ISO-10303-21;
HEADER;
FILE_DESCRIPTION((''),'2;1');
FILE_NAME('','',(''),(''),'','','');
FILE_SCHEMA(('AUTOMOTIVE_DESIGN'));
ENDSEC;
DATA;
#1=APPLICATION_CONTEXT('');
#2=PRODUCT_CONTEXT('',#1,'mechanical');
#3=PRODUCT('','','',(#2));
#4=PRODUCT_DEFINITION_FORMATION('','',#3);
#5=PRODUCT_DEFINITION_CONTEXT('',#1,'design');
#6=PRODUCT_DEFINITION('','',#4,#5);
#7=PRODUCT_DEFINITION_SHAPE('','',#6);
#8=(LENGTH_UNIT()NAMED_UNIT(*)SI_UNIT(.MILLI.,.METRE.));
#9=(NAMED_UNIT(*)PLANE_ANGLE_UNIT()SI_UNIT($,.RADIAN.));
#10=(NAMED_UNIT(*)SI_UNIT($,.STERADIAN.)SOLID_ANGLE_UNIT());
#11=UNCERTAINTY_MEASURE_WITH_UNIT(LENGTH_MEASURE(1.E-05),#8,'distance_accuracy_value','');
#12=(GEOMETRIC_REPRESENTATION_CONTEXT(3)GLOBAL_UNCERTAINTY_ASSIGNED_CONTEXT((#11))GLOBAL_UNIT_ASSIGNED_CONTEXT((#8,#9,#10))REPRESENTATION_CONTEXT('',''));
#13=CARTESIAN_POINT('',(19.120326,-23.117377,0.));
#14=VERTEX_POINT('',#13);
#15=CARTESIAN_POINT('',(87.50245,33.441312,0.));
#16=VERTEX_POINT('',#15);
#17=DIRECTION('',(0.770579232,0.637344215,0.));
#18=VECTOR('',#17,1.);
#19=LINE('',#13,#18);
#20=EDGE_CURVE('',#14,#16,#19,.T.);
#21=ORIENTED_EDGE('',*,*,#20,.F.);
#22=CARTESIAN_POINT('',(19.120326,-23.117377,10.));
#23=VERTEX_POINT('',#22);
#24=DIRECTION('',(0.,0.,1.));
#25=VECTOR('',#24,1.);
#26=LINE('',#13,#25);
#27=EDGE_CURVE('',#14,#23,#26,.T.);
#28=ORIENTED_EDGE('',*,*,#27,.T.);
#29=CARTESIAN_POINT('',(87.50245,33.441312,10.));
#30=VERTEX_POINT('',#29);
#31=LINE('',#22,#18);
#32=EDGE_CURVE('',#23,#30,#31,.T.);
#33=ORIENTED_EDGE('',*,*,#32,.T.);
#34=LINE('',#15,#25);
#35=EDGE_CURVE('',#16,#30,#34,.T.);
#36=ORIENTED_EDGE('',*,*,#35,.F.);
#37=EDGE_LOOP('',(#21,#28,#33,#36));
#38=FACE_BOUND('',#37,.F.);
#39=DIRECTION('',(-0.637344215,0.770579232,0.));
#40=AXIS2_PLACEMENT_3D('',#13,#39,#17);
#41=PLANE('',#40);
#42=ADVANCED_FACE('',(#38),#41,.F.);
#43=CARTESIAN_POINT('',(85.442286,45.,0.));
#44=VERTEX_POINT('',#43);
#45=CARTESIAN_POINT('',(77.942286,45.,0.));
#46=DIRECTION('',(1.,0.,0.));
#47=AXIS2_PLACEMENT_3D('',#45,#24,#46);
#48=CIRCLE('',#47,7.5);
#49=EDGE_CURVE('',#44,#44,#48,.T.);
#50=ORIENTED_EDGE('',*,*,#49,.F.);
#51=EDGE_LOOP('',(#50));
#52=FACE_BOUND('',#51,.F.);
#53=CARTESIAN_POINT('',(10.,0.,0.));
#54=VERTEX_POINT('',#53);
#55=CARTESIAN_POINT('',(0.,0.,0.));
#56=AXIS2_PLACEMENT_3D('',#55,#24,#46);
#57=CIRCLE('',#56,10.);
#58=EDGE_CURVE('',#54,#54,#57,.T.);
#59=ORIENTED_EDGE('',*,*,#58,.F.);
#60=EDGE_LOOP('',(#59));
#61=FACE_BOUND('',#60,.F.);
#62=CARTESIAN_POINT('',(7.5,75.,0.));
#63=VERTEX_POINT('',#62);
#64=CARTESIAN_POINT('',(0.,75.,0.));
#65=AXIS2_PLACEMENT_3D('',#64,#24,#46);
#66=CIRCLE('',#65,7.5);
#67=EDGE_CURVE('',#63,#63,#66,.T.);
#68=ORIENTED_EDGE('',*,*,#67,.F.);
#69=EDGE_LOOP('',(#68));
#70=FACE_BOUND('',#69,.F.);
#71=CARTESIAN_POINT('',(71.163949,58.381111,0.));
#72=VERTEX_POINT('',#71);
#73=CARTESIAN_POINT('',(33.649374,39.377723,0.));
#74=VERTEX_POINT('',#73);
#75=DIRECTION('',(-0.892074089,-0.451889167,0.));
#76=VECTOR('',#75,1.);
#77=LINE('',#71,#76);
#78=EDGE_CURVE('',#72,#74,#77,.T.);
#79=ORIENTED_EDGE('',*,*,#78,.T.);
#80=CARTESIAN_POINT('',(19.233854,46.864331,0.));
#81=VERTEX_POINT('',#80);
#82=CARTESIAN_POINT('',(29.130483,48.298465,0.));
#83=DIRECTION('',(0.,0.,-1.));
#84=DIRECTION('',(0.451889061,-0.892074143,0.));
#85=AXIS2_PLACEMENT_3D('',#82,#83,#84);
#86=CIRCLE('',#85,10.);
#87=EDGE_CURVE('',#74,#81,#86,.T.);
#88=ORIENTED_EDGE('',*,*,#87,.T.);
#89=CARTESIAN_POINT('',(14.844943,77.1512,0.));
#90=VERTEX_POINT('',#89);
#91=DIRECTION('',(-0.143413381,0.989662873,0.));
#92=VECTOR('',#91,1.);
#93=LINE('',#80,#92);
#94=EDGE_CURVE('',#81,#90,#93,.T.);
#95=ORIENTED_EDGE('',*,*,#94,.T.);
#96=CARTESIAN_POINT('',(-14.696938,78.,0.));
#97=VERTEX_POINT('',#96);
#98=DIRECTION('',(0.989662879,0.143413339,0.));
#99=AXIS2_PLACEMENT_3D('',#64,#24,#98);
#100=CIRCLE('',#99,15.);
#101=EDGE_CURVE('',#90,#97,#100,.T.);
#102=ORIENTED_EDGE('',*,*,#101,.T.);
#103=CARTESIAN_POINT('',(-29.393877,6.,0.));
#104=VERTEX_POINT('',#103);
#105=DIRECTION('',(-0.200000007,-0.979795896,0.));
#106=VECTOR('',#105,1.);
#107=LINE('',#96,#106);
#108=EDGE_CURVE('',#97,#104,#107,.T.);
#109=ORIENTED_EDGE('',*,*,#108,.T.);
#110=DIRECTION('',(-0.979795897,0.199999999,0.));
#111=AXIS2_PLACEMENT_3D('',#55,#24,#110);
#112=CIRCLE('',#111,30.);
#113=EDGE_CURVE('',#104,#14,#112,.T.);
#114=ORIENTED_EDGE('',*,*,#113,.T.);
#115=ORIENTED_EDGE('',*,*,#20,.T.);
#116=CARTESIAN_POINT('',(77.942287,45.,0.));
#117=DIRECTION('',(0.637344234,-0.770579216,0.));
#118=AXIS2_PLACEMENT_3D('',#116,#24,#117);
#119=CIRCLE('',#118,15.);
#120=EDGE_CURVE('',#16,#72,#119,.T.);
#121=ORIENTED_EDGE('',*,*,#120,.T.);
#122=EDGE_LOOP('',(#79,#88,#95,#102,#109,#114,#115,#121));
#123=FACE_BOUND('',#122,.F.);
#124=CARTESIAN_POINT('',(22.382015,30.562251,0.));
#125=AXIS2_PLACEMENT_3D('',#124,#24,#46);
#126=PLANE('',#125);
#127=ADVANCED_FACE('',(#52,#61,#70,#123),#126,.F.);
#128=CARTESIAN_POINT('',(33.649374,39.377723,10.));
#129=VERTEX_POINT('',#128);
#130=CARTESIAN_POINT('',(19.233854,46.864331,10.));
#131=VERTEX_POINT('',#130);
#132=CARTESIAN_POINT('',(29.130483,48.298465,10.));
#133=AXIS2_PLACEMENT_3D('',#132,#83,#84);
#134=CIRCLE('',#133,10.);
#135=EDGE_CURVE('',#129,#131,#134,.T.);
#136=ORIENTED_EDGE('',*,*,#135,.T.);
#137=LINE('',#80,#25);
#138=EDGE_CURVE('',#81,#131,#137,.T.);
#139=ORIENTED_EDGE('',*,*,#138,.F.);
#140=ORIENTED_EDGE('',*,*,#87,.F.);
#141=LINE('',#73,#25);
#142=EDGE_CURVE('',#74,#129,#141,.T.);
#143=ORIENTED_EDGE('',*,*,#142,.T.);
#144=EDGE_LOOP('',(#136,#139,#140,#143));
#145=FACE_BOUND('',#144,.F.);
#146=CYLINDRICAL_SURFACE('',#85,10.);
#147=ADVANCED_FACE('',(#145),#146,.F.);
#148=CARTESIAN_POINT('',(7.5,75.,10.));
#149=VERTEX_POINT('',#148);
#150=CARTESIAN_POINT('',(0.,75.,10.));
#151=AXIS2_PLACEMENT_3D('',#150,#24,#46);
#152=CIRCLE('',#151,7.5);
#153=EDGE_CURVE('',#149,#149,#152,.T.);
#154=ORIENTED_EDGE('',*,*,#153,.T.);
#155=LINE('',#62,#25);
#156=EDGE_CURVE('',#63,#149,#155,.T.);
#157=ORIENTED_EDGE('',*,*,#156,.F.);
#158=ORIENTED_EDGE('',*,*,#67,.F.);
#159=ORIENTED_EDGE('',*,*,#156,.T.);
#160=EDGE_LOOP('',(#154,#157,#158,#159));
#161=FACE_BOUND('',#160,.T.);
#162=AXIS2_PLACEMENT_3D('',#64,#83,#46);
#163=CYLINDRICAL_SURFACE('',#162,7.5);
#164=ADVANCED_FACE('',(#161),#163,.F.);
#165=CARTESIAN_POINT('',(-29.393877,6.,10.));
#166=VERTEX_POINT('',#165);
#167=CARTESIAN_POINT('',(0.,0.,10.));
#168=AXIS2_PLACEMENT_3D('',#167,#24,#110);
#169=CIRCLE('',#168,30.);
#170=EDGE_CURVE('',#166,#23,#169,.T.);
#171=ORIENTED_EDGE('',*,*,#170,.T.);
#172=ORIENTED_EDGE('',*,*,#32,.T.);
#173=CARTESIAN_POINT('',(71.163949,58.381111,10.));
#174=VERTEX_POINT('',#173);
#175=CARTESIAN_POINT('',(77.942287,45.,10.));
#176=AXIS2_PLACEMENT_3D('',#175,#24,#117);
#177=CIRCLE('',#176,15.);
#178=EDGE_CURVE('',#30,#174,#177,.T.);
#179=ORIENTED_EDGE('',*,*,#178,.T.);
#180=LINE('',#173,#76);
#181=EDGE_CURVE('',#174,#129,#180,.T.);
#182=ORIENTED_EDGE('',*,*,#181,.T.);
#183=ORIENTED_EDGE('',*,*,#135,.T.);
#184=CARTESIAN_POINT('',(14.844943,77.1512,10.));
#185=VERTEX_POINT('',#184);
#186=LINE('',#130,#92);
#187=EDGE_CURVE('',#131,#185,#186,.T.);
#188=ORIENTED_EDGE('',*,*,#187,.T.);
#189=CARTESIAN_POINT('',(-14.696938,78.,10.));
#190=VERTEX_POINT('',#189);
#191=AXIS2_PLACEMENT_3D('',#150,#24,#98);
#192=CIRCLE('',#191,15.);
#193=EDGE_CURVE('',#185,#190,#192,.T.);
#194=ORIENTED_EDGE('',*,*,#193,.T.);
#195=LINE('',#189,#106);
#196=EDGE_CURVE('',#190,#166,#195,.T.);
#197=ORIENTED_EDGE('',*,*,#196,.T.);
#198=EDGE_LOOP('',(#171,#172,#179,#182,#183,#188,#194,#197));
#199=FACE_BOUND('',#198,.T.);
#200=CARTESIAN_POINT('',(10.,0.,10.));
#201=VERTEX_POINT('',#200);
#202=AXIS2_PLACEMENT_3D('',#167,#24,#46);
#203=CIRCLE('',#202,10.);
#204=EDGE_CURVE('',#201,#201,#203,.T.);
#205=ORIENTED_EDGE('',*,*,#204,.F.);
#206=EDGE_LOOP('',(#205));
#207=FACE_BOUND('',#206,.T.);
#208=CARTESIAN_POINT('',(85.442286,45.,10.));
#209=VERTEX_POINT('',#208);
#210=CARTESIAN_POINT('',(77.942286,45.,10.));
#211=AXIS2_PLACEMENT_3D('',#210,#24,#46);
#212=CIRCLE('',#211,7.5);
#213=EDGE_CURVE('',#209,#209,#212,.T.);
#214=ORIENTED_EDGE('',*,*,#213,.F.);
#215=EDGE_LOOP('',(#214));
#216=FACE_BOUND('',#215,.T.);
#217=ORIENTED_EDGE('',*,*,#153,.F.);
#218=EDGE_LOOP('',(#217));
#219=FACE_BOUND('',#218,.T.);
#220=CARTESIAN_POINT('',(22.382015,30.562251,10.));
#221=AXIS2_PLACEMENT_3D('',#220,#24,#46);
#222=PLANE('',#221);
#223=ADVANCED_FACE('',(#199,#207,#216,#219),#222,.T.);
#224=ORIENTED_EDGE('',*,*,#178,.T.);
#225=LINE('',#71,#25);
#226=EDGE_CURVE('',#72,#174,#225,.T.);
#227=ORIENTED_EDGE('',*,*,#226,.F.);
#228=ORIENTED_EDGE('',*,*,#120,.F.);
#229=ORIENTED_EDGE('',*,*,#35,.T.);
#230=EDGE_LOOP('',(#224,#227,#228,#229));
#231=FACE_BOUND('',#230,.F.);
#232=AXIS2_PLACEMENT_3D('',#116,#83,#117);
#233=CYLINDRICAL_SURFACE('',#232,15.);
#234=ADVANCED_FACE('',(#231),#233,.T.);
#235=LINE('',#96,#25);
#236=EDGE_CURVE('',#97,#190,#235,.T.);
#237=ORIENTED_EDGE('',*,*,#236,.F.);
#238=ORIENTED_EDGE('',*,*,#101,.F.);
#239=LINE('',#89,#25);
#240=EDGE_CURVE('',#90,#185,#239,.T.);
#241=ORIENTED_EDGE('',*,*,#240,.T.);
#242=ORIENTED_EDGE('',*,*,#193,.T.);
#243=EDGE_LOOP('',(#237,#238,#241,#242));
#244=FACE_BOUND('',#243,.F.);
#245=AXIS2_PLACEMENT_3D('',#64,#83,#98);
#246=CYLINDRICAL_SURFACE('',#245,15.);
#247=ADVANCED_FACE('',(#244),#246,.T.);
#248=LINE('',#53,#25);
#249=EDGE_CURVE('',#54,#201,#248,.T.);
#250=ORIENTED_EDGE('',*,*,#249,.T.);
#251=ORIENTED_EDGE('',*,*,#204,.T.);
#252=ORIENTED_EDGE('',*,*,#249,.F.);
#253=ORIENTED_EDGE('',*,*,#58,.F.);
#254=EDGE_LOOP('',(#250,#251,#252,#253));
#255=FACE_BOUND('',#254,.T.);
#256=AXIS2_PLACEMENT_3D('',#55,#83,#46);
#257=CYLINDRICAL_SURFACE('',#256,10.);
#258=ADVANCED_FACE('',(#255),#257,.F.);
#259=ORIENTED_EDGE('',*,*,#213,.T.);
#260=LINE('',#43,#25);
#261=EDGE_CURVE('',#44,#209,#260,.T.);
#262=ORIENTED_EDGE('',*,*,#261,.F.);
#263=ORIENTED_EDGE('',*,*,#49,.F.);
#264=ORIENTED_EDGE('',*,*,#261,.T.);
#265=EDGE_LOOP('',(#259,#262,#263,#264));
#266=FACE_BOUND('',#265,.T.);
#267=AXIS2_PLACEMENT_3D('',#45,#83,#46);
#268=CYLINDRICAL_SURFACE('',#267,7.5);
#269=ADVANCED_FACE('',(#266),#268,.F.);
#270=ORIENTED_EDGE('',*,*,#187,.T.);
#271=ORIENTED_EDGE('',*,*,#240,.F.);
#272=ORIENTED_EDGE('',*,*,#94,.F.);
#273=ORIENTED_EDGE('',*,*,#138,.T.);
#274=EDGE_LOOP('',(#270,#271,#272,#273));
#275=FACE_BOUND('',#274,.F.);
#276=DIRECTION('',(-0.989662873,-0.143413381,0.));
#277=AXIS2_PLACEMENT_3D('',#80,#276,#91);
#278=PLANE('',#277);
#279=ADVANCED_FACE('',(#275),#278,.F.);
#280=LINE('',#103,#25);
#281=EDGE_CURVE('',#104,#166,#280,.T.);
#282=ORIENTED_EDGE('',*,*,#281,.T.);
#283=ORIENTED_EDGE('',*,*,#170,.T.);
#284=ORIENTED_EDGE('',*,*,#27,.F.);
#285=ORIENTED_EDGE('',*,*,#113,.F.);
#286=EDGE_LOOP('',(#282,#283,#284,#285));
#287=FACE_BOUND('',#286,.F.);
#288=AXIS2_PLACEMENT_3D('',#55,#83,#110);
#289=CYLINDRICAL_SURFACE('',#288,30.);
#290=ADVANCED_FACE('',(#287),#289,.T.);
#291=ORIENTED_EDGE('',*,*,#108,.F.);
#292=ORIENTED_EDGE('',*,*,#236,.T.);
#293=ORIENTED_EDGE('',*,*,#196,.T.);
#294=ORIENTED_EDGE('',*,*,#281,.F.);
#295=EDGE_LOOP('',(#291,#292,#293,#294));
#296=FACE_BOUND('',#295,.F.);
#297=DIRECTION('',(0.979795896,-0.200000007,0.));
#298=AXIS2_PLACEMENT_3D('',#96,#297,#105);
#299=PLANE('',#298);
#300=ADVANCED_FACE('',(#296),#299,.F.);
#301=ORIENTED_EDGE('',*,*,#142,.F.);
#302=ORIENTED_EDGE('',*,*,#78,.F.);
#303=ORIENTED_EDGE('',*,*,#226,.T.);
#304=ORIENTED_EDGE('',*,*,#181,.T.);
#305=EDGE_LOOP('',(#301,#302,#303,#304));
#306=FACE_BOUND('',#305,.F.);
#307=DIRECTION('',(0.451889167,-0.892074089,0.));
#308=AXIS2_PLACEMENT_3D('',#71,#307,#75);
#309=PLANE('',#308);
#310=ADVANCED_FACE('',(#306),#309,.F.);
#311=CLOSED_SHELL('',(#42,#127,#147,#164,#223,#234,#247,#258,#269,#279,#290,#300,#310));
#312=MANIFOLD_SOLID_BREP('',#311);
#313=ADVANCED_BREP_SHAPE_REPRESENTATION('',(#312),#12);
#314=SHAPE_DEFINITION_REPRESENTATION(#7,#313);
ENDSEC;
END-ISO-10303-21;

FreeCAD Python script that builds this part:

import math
import FreeCAD as App
import Part
import Sketcher

V = App.Vector
Q = App.Units.Quantity

doc = App.newDocument("Part")
body = doc.addObject("PartDesign::Body", "Body")

sketch1 = doc.addObject("Sketcher::SketchObject", "Sketch")
body.addObject(sketch1)
sketch1.AttachmentSupport = (doc.XY_Plane, [""])
sketch1.MapMode = "FlatFace"
sketch1.addGeometry([
    Part.LineSegment(V(-15, 78, 0), V(-29, 6, 0)),
    Part.ArcOfCircle(Part.Circle(V(0, 0, 0), V(0, 0, 1), 30), math.radians(168), math.radians(310)),
    Part.LineSegment(V(19, -23, 0), V(88, 33, 0)),
    Part.ArcOfCircle(Part.Circle(V(78, 45, 0), V(0, 0, 1), 15), math.radians(-50), math.radians(117)),
    Part.LineSegment(V(71, 58, 0), V(34, 39, 0)),
    Part.ArcOfCircle(Part.Circle(V(29, 48, 0), V(0, 0, 1), 10), math.radians(-172), math.radians(-63)),
    Part.LineSegment(V(19, 47, 0), V(15, 77, 0)),
    Part.ArcOfCircle(Part.Circle(V(0, 75, 0), V(0, 0, 1), 15), math.radians(8), math.radians(168)),
    Part.Circle(V(0, 0, 0), V(0, 0, 1), 10),
    Part.Circle(V(0, 75, 0), V(0, 0, 1), 8),
    Part.Circle(V(78, 45, 0), V(0, 0, 1), 8),
], False)
sketch1.addConstraint([
    Sketcher.Constraint("Tangent", 0, 2, 1, 1),
    Sketcher.Constraint("Tangent", 1, 2, 2, 1),
    Sketcher.Constraint("Tangent", 2, 2, 3, 1),
    Sketcher.Constraint("Tangent", 3, 2, 4, 1),
    Sketcher.Constraint("Tangent", 4, 2, 5, 2),
    Sketcher.Constraint("Tangent", 5, 1, 6, 1),
    Sketcher.Constraint("Tangent", 6, 2, 7, 1),
    Sketcher.Constraint("Tangent", 7, 2, 0, 1),
    Sketcher.Constraint("Coincident", 1, 3, -1, 1),
    Sketcher.Constraint("Coincident", 8, 3, -1, 1),
    Sketcher.Constraint("Coincident", 9, 3, 7, 3),
    Sketcher.Constraint("Coincident", 10, 3, 3, 3),
    Sketcher.Constraint("Equal", 3, 7),
    Sketcher.Constraint("Equal", 5, 8),
    Sketcher.Constraint("Equal", 9, 10),
    Sketcher.Constraint("PointOnObject", 7, 3, -2),
    Sketcher.Constraint("Diameter", 8, Q("20 mm")),
    Sketcher.Constraint("Diameter", 9, Q("15 mm")),
    Sketcher.Constraint("Radius", 1, Q("30 mm")),
    Sketcher.Constraint("Radius", 3, Q("15 mm")),
    Sketcher.Constraint("DistanceY", -1, 1, 3, 3, Q("45 mm")),
    Sketcher.Constraint("DistanceY", -1, 1, 7, 3, Q("75 mm")),
    Sketcher.Constraint("DistanceY", -1, 1, 6, 2, Q("77.1512 mm")),
    Sketcher.Constraint("DistanceX", 3, 2, 2, 2, Q("16.338501 mm")),
    Sketcher.Constraint("Distance", 6, Q("30.603218 mm")),
])
pad1 = doc.addObject("PartDesign::Pad", "Pad")
body.addObject(pad1)
pad1.Profile = sketch1
pad1.Length = 10

doc.recompute()
